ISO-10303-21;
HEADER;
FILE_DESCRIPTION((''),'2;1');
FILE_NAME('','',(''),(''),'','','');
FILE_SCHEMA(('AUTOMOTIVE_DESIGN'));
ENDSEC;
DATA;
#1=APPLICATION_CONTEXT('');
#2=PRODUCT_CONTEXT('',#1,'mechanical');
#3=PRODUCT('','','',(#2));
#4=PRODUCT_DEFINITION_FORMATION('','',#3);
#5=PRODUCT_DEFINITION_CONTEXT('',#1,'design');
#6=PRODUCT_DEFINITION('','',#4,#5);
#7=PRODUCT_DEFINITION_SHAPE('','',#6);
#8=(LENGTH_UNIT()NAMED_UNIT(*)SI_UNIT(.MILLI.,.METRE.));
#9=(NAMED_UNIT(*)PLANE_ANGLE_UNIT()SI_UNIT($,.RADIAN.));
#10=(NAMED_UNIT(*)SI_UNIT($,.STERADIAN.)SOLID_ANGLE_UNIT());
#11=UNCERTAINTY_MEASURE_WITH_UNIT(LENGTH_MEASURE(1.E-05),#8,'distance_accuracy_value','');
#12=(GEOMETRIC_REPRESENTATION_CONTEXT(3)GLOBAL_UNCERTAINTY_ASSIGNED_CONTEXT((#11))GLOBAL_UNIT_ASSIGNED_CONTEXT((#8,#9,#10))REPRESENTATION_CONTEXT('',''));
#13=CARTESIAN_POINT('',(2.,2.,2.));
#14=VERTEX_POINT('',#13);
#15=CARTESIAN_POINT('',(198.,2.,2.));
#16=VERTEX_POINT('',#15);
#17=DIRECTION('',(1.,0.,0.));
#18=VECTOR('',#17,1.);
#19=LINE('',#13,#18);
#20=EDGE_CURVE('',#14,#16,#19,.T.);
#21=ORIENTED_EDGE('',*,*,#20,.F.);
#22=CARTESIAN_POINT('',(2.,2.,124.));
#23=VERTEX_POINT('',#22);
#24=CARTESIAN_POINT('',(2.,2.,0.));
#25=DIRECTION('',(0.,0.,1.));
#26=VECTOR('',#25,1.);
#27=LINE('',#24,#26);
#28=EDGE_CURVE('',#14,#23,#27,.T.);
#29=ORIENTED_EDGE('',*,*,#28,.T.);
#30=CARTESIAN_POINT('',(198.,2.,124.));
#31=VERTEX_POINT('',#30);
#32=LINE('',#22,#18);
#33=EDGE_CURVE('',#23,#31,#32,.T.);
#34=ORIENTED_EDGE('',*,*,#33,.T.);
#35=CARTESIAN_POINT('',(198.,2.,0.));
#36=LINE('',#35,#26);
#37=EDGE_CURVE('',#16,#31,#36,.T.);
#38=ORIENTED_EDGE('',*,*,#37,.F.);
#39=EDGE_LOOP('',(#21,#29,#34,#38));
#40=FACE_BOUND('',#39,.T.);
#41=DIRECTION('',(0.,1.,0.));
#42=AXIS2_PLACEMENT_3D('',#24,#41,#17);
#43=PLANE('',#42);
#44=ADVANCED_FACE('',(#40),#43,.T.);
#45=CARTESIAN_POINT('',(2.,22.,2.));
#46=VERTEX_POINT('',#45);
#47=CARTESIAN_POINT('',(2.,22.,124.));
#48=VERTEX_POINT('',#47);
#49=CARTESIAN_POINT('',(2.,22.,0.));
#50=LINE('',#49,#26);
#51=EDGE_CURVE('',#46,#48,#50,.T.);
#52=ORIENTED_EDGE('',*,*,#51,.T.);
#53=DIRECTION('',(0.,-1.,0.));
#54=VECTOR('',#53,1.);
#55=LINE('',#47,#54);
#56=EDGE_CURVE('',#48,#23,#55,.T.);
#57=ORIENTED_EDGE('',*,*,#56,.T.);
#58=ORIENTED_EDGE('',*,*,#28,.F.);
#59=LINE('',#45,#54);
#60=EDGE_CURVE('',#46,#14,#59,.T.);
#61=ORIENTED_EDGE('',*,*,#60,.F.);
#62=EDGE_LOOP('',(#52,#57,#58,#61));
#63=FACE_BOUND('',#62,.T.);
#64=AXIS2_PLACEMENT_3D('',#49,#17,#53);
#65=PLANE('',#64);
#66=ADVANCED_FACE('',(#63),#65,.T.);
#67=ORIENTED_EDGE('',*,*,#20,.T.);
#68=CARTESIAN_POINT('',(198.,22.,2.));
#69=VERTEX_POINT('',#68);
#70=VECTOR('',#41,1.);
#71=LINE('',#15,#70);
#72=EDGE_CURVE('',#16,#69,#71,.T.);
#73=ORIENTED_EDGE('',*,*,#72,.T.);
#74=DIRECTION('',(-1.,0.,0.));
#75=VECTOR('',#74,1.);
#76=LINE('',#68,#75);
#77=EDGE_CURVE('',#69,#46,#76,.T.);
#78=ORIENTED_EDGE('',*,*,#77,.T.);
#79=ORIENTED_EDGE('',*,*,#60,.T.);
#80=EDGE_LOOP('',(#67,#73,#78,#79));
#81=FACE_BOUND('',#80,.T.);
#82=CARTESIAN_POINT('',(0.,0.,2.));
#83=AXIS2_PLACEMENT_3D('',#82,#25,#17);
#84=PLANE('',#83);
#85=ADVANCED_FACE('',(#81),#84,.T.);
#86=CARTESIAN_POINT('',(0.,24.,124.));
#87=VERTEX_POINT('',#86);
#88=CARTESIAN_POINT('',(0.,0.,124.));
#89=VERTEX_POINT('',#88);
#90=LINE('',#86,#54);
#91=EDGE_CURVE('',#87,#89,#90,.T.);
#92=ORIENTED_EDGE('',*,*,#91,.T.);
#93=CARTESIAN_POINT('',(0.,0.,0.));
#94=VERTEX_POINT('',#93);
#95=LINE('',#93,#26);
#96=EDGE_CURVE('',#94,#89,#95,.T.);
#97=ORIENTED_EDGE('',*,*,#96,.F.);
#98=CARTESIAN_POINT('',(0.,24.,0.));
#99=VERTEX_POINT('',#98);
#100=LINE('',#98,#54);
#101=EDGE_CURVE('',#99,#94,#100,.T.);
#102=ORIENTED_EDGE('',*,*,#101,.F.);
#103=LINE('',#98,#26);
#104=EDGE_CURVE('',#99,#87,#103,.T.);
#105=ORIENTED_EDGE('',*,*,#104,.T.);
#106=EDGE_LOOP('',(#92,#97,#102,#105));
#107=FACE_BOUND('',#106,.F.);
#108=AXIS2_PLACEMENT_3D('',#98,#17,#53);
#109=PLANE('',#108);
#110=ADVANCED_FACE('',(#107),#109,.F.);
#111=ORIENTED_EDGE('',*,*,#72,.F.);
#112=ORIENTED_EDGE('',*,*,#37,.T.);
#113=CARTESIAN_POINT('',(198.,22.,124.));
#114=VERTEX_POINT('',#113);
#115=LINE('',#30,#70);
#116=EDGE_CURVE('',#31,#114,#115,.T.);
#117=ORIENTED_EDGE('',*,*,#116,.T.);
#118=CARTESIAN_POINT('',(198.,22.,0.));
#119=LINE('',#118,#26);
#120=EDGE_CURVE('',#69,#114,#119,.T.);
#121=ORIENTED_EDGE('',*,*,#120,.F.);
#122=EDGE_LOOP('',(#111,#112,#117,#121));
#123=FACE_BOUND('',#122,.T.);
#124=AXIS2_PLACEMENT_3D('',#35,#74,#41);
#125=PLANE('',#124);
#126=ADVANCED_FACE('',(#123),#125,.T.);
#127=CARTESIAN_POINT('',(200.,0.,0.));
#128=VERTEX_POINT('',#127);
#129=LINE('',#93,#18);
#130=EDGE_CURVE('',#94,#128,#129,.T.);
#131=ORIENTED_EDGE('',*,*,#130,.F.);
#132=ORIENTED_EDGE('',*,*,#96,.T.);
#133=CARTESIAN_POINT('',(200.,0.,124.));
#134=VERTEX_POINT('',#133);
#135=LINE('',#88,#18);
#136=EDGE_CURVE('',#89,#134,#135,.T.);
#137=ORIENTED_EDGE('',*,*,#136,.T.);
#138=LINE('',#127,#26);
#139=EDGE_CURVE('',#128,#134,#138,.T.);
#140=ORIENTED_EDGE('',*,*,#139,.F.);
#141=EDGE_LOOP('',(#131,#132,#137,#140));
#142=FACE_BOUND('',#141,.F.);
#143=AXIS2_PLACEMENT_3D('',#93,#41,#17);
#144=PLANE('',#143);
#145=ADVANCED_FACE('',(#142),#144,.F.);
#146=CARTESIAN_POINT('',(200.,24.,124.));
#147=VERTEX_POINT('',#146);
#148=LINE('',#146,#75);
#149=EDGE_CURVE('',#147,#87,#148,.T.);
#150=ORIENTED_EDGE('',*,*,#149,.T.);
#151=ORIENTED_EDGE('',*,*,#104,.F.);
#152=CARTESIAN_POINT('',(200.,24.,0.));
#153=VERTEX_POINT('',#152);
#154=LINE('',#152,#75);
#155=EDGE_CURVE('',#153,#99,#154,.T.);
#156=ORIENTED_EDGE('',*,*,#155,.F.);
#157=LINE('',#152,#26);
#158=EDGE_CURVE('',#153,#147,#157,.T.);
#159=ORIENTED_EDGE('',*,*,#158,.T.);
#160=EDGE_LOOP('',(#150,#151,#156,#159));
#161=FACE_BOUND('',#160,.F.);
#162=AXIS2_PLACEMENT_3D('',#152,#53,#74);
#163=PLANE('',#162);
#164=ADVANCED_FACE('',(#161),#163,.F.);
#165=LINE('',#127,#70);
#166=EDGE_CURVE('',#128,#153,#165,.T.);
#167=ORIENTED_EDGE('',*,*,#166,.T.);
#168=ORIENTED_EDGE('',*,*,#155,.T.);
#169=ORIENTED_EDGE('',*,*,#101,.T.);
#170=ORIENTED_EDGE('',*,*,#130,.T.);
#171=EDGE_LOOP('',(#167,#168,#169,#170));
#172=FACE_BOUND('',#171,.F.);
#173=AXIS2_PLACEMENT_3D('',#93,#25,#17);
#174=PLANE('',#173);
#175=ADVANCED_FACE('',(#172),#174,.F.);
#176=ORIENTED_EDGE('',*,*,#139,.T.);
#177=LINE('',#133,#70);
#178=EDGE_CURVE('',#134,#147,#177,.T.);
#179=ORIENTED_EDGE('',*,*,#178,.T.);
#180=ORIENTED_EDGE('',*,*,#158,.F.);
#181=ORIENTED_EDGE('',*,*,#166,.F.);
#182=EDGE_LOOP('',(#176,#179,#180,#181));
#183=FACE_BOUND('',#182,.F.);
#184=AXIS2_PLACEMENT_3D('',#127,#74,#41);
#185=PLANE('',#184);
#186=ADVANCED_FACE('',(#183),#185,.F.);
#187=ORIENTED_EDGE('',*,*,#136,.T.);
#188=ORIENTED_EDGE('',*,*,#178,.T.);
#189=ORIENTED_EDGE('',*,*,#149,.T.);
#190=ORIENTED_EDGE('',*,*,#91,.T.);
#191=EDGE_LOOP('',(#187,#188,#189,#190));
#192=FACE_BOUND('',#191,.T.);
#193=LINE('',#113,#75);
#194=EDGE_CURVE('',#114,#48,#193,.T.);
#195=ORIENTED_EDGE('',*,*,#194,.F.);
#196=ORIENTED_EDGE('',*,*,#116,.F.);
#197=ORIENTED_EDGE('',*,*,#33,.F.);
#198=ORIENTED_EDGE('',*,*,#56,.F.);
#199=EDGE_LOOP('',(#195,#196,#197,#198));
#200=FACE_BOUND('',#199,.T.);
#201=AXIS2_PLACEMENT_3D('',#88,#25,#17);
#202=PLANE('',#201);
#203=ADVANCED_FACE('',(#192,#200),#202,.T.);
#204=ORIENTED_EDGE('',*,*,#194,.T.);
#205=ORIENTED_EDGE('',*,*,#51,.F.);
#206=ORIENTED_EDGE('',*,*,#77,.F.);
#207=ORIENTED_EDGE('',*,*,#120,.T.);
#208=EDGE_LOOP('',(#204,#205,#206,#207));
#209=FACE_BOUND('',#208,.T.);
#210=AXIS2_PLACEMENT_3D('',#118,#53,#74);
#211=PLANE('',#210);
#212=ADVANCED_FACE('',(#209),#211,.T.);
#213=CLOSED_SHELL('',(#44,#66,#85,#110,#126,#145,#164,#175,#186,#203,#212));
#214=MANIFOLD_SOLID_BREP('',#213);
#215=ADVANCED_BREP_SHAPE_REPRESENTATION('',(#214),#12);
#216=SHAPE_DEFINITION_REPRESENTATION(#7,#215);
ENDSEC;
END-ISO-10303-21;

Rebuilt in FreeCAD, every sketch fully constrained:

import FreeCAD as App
import Part
import Sketcher
Q = App.Units.Quantity


def add_polygon(sketch, points):
    """Adds a closed chain of lines whose ends are joined by coincident constraints."""
    first, n = sketch.GeometryCount, len(points)
    for a, b in zip(points, points[1:] + points[:1]):
        sketch.addGeometry(Part.LineSegment(App.Vector(*a, 0), App.Vector(*b, 0)), False)
    for i in range(n):
        sketch.addConstraint(Sketcher.Constraint("Coincident", first + i, 2, first + (i + 1) % n, 1))

doc = App.newDocument("Part")
params = doc.addObject("Spreadsheet::Sheet", "Params")
for row, (alias, value) in enumerate([
    ("sketch1_width", "196 mm"),
    ("sketch1_height", "20 mm"),
    ("pad1_length", "2 mm"),
    ("sketch2_width", "200 mm"),
    ("sketch2_height", "24 mm"),
    ("sketch2_width2", "196 mm"),
    ("sketch2_height2", "20 mm"),
    ("pad2_length", "124 mm"),
], start=1):
    params.set(f"A{row}", alias)
    params.set(f"B{row}", "=" + value)
    params.setAlias(f"B{row}", alias)

body = doc.addObject("PartDesign::Body", "Body")

# Sketch on XY plane
sketch1 = doc.addObject("Sketcher::SketchObject", "Sketch")
body.addObject(sketch1)
sketch1.AttachmentSupport = (doc.XY_Plane, [""])
sketch1.MapMode = "FlatFace"
add_polygon(sketch1, [(2, 22), (2, 2), (198, 2), (198, 22)])  # lines 0-3
sketch1.addConstraint([
    Sketcher.Constraint("Vertical", 0),
    Sketcher.Constraint("Horizontal", 1),
    Sketcher.Constraint("Vertical", 2),
    Sketcher.Constraint("Horizontal", 3),
    Sketcher.Constraint("DistanceX", 1, 1, 1, 2, Q("196 mm")),
    Sketcher.Constraint("DistanceY", 0, 2, 0, 1, Q("20 mm")),
    Sketcher.Constraint("DistanceX", -1, 1, 0, 2, Q("2 mm")),
    Sketcher.Constraint("DistanceY", -1, 1, 0, 2, Q("2 mm")),
])
sketch1.setExpression("Constraints[8]", "Params.sketch1_width")
sketch1.setExpression("Constraints[9]", "Params.sketch1_height")
pad1 = doc.addObject("PartDesign::Pad", "Pad")
body.addObject(pad1)
pad1.Profile = sketch1
pad1.setExpression("Length", "Params.pad1_length")

# Sketch on XY plane
sketch2 = doc.addObject("Sketcher::SketchObject", "Sketch001")
body.addObject(sketch2)
sketch2.AttachmentSupport = (doc.XY_Plane, [""])
sketch2.MapMode = "FlatFace"
add_polygon(sketch2, [(0, 24), (0, 0), (200, 0), (200, 24)])  # lines 0-3
add_polygon(sketch2, [(198, 2), (2, 2), (2, 22), (198, 22)])  # lines 4-7
sketch2.addConstraint([
    Sketcher.Constraint("Vertical", 0),
    Sketcher.Constraint("Horizontal", 1),
    Sketcher.Constraint("Vertical", 2),
    Sketcher.Constraint("Horizontal", 3),
    Sketcher.Constraint("Horizontal", 4),
    Sketcher.Constraint("Vertical", 5),
    Sketcher.Constraint("Horizontal", 6),
    Sketcher.Constraint("Vertical", 7),
    Sketcher.Constraint("Coincident", 0, 2, -1, 1),
    Sketcher.Constraint("DistanceX", 1, 1, 1, 2, Q("200 mm")),
    Sketcher.Constraint("DistanceY", 0, 2, 0, 1, Q("24 mm")),
    Sketcher.Constraint("DistanceX", 4, 2, 4, 1, Q("196 mm")),
    Sketcher.Constraint("DistanceY", 5, 1, 5, 2, Q("20 mm")),
    Sketcher.Constraint("DistanceX", -1, 1, 4, 2, Q("2 mm")),
    Sketcher.Constraint("DistanceY", -1, 1, 4, 2, Q("2 mm")),
])
sketch2.setExpression("Constraints[17]", "Params.sketch2_width")
sketch2.setExpression("Constraints[18]", "Params.sketch2_height")
sketch2.setExpression("Constraints[19]", "Params.sketch2_width2")
sketch2.setExpression("Constraints[20]", "Params.sketch2_height2")
pad2 = doc.addObject("PartDesign::Pad", "Pad001")
body.addObject(pad2)
pad2.Profile = sketch2
pad2.setExpression("Length", "Params.pad2_length")

doc.recompute()
